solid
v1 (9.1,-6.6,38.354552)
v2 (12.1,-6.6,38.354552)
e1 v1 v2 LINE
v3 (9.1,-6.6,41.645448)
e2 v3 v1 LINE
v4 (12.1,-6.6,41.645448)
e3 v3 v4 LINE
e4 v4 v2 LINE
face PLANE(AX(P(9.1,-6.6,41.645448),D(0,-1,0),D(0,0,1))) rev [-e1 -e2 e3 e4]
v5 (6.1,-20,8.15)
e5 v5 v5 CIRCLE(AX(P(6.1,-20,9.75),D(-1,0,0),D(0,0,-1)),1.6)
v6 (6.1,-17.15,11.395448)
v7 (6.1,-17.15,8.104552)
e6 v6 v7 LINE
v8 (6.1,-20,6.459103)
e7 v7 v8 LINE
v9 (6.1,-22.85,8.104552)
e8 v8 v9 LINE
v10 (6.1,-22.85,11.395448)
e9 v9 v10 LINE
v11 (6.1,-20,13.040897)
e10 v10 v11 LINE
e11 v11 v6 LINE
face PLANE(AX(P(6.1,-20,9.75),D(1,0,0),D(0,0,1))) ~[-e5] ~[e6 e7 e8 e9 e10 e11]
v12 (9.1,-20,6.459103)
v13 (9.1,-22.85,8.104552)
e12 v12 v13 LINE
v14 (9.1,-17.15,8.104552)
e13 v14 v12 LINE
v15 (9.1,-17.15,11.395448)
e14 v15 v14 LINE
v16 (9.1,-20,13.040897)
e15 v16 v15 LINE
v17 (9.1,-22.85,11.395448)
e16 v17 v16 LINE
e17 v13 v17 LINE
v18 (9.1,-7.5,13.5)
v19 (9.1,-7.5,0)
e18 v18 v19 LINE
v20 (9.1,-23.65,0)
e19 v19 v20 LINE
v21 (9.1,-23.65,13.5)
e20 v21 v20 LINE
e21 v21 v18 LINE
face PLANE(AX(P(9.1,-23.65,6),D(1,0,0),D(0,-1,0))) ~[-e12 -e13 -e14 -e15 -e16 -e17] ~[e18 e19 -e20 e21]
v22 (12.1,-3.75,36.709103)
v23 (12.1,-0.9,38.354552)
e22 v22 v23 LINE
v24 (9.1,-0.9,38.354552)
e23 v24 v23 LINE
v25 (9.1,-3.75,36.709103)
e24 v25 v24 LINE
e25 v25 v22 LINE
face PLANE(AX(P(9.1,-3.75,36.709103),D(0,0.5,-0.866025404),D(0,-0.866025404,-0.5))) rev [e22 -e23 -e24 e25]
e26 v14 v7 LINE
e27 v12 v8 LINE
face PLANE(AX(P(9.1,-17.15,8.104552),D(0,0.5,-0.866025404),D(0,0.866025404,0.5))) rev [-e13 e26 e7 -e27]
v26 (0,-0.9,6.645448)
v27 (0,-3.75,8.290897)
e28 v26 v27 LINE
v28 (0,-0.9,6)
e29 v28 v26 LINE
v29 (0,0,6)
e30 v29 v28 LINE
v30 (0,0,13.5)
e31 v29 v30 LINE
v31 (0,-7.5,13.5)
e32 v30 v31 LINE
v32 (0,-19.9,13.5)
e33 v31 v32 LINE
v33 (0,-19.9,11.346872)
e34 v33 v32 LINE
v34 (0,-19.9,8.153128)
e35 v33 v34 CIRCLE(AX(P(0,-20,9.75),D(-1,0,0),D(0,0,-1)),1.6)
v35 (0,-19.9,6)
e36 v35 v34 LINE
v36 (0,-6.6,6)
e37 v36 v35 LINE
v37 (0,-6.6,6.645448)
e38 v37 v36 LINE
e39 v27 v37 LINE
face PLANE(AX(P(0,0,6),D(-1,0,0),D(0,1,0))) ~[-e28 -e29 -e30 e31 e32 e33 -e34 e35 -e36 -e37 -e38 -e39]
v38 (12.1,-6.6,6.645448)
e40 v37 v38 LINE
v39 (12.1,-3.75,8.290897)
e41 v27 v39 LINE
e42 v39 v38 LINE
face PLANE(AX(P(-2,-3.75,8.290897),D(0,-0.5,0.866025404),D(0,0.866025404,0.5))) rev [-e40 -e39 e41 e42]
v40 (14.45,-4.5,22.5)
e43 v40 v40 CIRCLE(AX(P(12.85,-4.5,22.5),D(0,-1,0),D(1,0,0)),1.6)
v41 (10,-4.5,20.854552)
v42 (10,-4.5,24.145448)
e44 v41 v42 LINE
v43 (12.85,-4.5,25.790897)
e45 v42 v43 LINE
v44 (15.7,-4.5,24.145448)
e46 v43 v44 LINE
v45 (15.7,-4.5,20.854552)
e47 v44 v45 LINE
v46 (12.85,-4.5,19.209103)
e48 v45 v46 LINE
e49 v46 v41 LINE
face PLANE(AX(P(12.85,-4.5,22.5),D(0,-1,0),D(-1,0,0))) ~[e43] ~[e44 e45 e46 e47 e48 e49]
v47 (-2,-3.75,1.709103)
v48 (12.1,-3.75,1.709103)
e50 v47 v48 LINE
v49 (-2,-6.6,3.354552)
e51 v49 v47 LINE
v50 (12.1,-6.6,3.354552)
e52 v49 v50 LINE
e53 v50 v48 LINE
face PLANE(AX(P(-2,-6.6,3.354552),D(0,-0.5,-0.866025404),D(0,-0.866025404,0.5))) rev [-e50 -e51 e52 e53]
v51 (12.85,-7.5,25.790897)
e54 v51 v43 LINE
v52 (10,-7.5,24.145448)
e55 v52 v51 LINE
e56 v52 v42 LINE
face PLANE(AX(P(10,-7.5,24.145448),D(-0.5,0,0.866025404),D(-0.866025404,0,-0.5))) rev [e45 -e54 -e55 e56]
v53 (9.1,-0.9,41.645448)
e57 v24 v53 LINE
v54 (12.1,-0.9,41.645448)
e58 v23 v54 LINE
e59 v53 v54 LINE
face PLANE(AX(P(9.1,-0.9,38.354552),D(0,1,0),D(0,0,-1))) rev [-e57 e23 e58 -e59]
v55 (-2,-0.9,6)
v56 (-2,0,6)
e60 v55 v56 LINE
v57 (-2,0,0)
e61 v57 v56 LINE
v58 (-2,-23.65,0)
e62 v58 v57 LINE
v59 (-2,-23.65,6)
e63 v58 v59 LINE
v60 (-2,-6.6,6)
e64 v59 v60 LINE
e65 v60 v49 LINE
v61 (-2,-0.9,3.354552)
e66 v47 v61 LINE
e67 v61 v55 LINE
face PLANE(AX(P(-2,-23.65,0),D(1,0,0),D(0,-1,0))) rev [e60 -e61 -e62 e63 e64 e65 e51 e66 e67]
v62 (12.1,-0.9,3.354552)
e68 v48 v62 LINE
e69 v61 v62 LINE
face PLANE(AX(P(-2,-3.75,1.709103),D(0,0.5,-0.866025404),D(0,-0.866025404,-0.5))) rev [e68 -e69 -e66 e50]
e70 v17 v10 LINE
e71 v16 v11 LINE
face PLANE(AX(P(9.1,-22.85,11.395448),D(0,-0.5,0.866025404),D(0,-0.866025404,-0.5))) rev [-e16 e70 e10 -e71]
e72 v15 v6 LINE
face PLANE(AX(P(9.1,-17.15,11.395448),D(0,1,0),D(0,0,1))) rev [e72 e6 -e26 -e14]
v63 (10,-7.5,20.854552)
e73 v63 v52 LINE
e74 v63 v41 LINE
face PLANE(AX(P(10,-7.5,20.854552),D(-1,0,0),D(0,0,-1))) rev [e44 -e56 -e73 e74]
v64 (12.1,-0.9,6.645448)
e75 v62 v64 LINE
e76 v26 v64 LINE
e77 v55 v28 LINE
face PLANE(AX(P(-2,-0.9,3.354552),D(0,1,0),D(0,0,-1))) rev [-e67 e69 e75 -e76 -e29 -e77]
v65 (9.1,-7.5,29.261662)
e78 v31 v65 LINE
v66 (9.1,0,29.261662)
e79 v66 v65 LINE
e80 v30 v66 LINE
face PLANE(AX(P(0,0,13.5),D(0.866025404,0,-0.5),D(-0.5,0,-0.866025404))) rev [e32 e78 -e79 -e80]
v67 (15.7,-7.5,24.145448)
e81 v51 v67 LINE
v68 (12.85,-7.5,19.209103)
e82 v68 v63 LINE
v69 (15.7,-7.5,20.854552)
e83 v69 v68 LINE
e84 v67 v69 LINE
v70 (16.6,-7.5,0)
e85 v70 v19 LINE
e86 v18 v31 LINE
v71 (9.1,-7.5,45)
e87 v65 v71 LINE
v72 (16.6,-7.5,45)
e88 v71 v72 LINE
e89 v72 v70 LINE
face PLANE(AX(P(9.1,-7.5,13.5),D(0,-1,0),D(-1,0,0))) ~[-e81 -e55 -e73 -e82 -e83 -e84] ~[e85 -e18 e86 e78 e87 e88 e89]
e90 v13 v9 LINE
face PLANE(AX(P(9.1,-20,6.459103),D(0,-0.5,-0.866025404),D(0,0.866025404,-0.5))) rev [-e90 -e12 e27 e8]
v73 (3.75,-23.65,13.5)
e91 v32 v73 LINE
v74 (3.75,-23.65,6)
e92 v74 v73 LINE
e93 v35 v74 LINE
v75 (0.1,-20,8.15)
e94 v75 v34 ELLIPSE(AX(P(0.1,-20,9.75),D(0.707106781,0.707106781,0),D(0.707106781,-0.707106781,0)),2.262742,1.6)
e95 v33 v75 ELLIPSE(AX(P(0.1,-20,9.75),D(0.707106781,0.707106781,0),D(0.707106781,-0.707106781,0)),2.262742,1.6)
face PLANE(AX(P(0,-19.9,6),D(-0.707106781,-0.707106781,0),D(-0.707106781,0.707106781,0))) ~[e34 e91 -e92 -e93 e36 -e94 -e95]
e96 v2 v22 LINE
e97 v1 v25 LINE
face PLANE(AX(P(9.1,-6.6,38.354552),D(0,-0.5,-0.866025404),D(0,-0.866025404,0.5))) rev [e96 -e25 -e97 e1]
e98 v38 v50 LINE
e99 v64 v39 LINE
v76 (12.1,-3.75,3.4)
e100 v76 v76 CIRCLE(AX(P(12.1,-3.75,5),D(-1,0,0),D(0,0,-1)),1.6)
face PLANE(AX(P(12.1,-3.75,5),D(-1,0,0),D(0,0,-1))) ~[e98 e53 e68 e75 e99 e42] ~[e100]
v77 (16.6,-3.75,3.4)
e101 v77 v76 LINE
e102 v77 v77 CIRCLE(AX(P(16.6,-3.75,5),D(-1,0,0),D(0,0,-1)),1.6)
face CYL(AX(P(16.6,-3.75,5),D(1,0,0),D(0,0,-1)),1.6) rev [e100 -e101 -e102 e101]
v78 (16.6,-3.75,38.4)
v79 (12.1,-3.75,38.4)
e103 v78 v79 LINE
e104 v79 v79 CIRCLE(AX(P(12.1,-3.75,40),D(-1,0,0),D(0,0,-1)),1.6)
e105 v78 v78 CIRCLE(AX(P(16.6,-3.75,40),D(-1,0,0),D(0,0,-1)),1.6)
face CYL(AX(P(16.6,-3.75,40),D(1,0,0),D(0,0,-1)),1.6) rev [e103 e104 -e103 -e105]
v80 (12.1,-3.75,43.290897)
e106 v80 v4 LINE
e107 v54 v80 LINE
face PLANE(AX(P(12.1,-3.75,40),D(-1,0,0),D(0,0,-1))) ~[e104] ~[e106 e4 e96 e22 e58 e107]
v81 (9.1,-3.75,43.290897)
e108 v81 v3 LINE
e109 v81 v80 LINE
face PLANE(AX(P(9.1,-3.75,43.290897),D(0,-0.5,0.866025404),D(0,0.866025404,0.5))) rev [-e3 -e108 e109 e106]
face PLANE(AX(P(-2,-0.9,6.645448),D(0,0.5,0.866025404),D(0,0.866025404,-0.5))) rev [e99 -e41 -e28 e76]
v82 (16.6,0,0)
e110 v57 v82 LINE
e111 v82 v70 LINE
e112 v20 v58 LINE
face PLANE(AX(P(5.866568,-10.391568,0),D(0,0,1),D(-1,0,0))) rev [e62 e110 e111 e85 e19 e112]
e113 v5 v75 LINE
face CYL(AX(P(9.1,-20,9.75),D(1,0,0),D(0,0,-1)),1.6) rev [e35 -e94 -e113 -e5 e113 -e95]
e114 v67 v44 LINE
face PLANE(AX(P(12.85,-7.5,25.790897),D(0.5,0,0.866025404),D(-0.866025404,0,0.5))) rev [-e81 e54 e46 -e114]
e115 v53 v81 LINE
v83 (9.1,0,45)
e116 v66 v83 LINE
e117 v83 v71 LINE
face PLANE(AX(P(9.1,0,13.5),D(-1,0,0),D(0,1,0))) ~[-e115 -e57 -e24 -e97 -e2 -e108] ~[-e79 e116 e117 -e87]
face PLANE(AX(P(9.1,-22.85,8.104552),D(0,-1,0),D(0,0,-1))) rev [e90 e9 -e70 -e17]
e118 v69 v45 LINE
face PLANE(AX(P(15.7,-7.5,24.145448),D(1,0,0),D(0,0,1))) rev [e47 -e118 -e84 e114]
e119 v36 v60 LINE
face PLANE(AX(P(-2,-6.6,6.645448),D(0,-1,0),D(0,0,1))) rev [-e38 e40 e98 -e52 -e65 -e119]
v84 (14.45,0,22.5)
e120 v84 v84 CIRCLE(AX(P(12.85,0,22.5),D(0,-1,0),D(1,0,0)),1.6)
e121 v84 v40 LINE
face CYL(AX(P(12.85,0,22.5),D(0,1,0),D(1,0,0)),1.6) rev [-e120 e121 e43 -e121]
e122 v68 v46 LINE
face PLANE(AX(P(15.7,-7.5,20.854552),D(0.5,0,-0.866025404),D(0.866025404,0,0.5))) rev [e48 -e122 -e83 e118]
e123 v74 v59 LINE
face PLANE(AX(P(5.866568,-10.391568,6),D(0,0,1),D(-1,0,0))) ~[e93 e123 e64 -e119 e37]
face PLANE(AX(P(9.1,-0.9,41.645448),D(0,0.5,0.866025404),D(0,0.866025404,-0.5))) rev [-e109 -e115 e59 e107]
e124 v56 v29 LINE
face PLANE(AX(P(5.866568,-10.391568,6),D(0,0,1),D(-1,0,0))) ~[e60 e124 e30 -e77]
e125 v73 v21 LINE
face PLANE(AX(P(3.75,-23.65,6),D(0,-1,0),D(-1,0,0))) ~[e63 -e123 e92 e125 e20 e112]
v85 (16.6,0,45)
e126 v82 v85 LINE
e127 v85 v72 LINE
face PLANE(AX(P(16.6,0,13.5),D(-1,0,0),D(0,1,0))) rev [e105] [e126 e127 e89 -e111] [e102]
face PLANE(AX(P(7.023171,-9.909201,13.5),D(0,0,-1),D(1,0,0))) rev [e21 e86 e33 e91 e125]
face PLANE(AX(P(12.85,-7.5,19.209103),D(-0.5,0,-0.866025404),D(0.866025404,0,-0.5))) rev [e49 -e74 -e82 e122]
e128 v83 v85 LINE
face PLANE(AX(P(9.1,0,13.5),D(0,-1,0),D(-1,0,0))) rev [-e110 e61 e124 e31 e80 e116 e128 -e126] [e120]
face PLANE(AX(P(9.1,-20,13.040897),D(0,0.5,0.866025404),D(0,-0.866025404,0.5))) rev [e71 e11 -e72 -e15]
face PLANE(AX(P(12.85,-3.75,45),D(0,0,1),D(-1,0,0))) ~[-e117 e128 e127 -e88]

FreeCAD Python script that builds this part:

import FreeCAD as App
import Part
import Sketcher

V = App.Vector
Q = App.Units.Quantity


def add_polygon(sketch, points):
    """Adds a closed chain of lines whose ends are joined by coincident constraints."""
    first, n = sketch.GeometryCount, len(points)
    for a, b in zip(points, points[1:] + points[:1]):
        sketch.addGeometry(Part.LineSegment(App.Vector(*a, 0), App.Vector(*b, 0)), False)
    for i in range(n):
        sketch.addConstraint(Sketcher.Constraint("Coincident", first + i, 2, first + (i + 1) % n, 1))

doc = App.newDocument("Part")
body = doc.addObject("PartDesign::Body", "Body")

# Sketch on XY plane
sketch1 = doc.addObject("Sketcher::SketchObject", "Sketch")
body.addObject(sketch1)
sketch1.AttachmentSupport = (doc.XY_Plane, [""])
sketch1.MapMode = "FlatFace"
add_polygon(sketch1, [(17, 0), (17, 8), (9, 8), (9, 24), (-2, 24), (-2, 0)])  # lines 0-5
sketch1.addConstraint(Sketcher.Constraint("Vertical", 0))
sketch1.addConstraint(Sketcher.Constraint("Horizontal", 1))
sketch1.addConstraint(Sketcher.Constraint("Vertical", 2))
sketch1.addConstraint(Sketcher.Constraint("Horizontal", 3))
sketch1.addConstraint(Sketcher.Constraint("Vertical", 4))
sketch1.addConstraint(Sketcher.Constraint("Horizontal", 5))
sketch1.addConstraint(Sketcher.Constraint("PointOnObject", 4, 2, -1))
sketch1.addConstraint(Sketcher.Constraint("Equal", 1, 0))
sketch1.addConstraint(Sketcher.Constraint("DistanceX", 1, 2, 1, 1, Q("7.5 mm")))
sketch1.addConstraint(Sketcher.Constraint("DistanceX", 3, 2, 3, 1, Q("11.1 mm")))
sketch1.addConstraint(Sketcher.Constraint("DistanceX", 3, 2, -1, 1, Q("2 mm")))
sketch1.addConstraint(Sketcher.Constraint("DistanceY", 2, 1, 2, 2, Q("16.15 mm")))
pad1 = doc.addObject("PartDesign::Pad", "Pad")
body.addObject(pad1)
pad1.Profile = sketch1
pad1.Length = 6

# Sketch on XY plane
sketch2 = doc.addObject("Sketcher::SketchObject", "Sketch001")
body.addObject(sketch2)
sketch2.AttachmentSupport = (doc.XY_Plane, [""])
sketch2.MapMode = "FlatFace"
sketch2.AttachmentOffset = App.Placement(V(0, 0, 6), App.Rotation())
add_polygon(sketch2, [(0, 20), (0, 0), (17, 0), (17, 8), (9, 8), (9, 24), (4, 24)])  # lines 0-6
sketch2.addConstraint(Sketcher.Constraint("Vertical", 0))
sketch2.addConstraint(Sketcher.Constraint("Horizontal", 1))
sketch2.addConstraint(Sketcher.Constraint("Vertical", 2))
sketch2.addConstraint(Sketcher.Constraint("Horizontal", 3))
sketch2.addConstraint(Sketcher.Constraint("Vertical", 4))
sketch2.addConstraint(Sketcher.Constraint("Horizontal", 5))
sketch2.addConstraint(Sketcher.Constraint("Coincident", 0, 2, -1, 1))
sketch2.addConstraint(Sketcher.Constraint("Equal", 3, 2))
sketch2.addConstraint(Sketcher.Constraint("Angle", 6, Q("-135 deg")))
sketch2.addConstraint(Sketcher.Constraint("DistanceX", 1, 1, 1, 2, Q("16.6 mm")))
sketch2.addConstraint(Sketcher.Constraint("DistanceX", 3, 2, 3, 1, Q("7.5 mm")))
sketch2.addConstraint(Sketcher.Constraint("DistanceY", 0, 2, 0, 1, Q("19.9 mm")))
sketch2.addConstraint(Sketcher.Constraint("DistanceX", 5, 2, 5, 1, Q("5.35 mm")))
pad2 = doc.addObject("PartDesign::Pad", "Pad001")
body.addObject(pad2)
pad2.Profile = sketch2
pad2.Length = 7.5

# Sketch on XZ plane
sketch3 = doc.addObject("Sketcher::SketchObject", "Sketch002")
body.addObject(sketch3)
sketch3.AttachmentSupport = (doc.XZ_Plane, [""])
sketch3.MapMode = "FlatFace"
add_polygon(sketch3, [(9, 29), (0, 14), (9, 14)])  # lines 0-2
sketch3.addConstraint(Sketcher.Constraint("Horizontal", 1))
sketch3.addConstraint(Sketcher.Constraint("Vertical", 2))
sketch3.addConstraint(Sketcher.Constraint("PointOnObject", 0, 2, -2))
sketch3.addConstraint(Sketcher.Constraint("Angle", 0, Q("-120 deg")))
sketch3.addConstraint(Sketcher.Constraint("DistanceX", 1, 1, 1, 2, Q("9.1 mm")))
sketch3.addConstraint(Sketcher.Constraint("DistanceY", -1, 1, 0, 2, Q("13.5 mm")))
pad3 = doc.addObject("PartDesign::Pad", "Pad002")
body.addObject(pad3)
pad3.Profile = sketch3
pad3.Length = 7.5
pad3.Reversed = True

# Sketch on XY plane
sketch4 = doc.addObject("Sketcher::SketchObject", "Sketch003")
body.addObject(sketch4)
sketch4.AttachmentSupport = (doc.XY_Plane, [""])
sketch4.MapMode = "FlatFace"
sketch4.AttachmentOffset = App.Placement(V(0, 0, 13.5), App.Rotation())
add_polygon(sketch4, [(9, 8), (9, 0), (17, 0), (17, 8)])  # lines 0-3
sketch4.addConstraint(Sketcher.Constraint("Vertical", 0))
sketch4.addConstraint(Sketcher.Constraint("Horizontal", 1))
sketch4.addConstraint(Sketcher.Constraint("Vertical", 2))
sketch4.addConstraint(Sketcher.Constraint("Horizontal", 3))
sketch4.addConstraint(Sketcher.Constraint("PointOnObject", 0, 2, -1))
sketch4.addConstraint(Sketcher.Constraint("Equal", 3, 0))
sketch4.addConstraint(Sketcher.Constraint("DistanceX", 1, 1, 1, 2, Q("7.5 mm")))
sketch4.addConstraint(Sketcher.Constraint("DistanceX", -1, 1, 0, 2, Q("9.1 mm")))
pad4 = doc.addObject("PartDesign::Pad", "Pad003")
body.addObject(pad4)
pad4.Profile = sketch4
pad4.Length = 31.5

# Sketch on YZ plane
sketch5 = doc.addObject("Sketcher::SketchObject", "Sketch004")
body.addObject(sketch5)
sketch5.AttachmentSupport = (doc.YZ_Plane, [""])
sketch5.MapMode = "FlatFace"
sketch5.AttachmentOffset = App.Placement(V(0, 0, 16.6), App.Rotation())
sketch5.addGeometry(Part.Circle(V(3.8, 5, 0), V(0, 0, 1), 1.6), False)
sketch5.addConstraint(Sketcher.Constraint("Diameter", 0, Q("3.2 mm")))
sketch5.addConstraint(Sketcher.Constraint("DistanceY", -1, 1, 0, 3, Q("5 mm")))
sketch5.addConstraint(Sketcher.Constraint("DistanceX", -1, 1, 0, 3, Q("3.75 mm")))
pocket1 = doc.addObject("PartDesign::Pocket", "Pocket")
body.addObject(pocket1)
pocket1.Profile = sketch5
pocket1.Type = "UpToFirst"

# Sketch on YZ plane
sketch6 = doc.addObject("Sketcher::SketchObject", "Sketch005")
body.addObject(sketch6)
sketch6.AttachmentSupport = (doc.YZ_Plane, [""])
sketch6.MapMode = "FlatFace"
sketch6.AttachmentOffset = App.Placement(V(0, 0, 16.6), App.Rotation())
sketch6.addGeometry(Part.Circle(V(3.8, 40, 0), V(0, 0, 1), 1.6), False)
sketch6.addConstraint(Sketcher.Constraint("Diameter", 0, Q("3.2 mm")))
sketch6.addConstraint(Sketcher.Constraint("DistanceY", -1, 1, 0, 3, Q("40 mm")))
sketch6.addConstraint(Sketcher.Constraint("DistanceX", -1, 1, 0, 3, Q("3.75 mm")))
pocket2 = doc.addObject("PartDesign::Pocket", "Pocket001")
body.addObject(pocket2)
pocket2.Profile = sketch6
pocket2.Type = "UpToFirst"

# Sketch on YZ plane
sketch7 = doc.addObject("Sketcher::SketchObject", "Sketch006")
body.addObject(sketch7)
sketch7.AttachmentSupport = (doc.YZ_Plane, [""])
sketch7.MapMode = "FlatFace"
sketch7.AttachmentOffset = App.Placement(V(0, 0, -2), App.Rotation())
add_polygon(sketch7, [(0.9, 3.4), (0.9, 6.6), (3.8, 8.3), (6.6, 6.6), (6.6, 3.4), (3.8, 1.7)])  # lines 0-5
sketch7.addConstraint(Sketcher.Constraint("Vertical", 0))
sketch7.addConstraint(Sketcher.Constraint("Vertical", 3))
sketch7.addConstraint(Sketcher.Constraint("Parallel", 1, 4))
sketch7.addConstraint(Sketcher.Constraint("Parallel", 2, 5))
sketch7.addConstraint(Sketcher.Constraint("Horizontal", 0, 2, 2, 2))
sketch7.addConstraint(Sketcher.Constraint("Horizontal", 3, 2, 5, 2))
sketch7.addConstraint(Sketcher.Constraint("Vertical", 1, 2, 4, 2))
sketch7.addConstraint(Sketcher.Constraint("Angle", 1, Q("30 deg")))
sketch7.addConstraint(Sketcher.Constraint("DistanceX", -1, 1, 0, 2, Q("0.9 mm")))
sketch7.addConstraint(Sketcher.Constraint("DistanceX", -1, 1, 2, 2, Q("6.6 mm")))
sketch7.addConstraint(Sketcher.Constraint("DistanceY", 0, 1, 0, 2, Q("3.290897 mm")))
sketch7.addConstraint(Sketcher.Constraint("DistanceY", -1, 1, 0, 2, Q("6.645448 mm")))
pocket3 = doc.addObject("PartDesign::Pocket", "Pocket002")
body.addObject(pocket3)
pocket3.Profile = sketch7
pocket3.Length = 14.1
pocket3.Reversed = True

# Sketch on YZ plane
sketch8 = doc.addObject("Sketcher::SketchObject", "Sketch007")
body.addObject(sketch8)
sketch8.AttachmentSupport = (doc.YZ_Plane, [""])
sketch8.MapMode = "FlatFace"
sketch8.AttachmentOffset = App.Placement(V(0, 0, 9.1), App.Rotation())
add_polygon(sketch8, [(0.9, 38.4), (0.9, 41.6), (3.8, 43.3), (6.6, 41.6), (6.6, 38.4), (3.8, 36.7)])  # lines 0-5
sketch8.addConstraint(Sketcher.Constraint("Vertical", 0))
sketch8.addConstraint(Sketcher.Constraint("Vertical", 3))
sketch8.addConstraint(Sketcher.Constraint("Parallel", 1, 4))
sketch8.addConstraint(Sketcher.Constraint("Parallel", 2, 5))
sketch8.addConstraint(Sketcher.Constraint("Horizontal", 0, 2, 2, 2))
sketch8.addConstraint(Sketcher.Constraint("Horizontal", 3, 2, 5, 2))
sketch8.addConstraint(Sketcher.Constraint("Vertical", 1, 2, 4, 2))
sketch8.addConstraint(Sketcher.Constraint("Angle", 1, Q("30 deg")))
sketch8.addConstraint(Sketcher.Constraint("DistanceX", -1, 1, 0, 2, Q("0.9 mm")))
sketch8.addConstraint(Sketcher.Constraint("DistanceX", -1, 1, 2, 2, Q("6.6 mm")))
sketch8.addConstraint(Sketcher.Constraint("DistanceY", 0, 1, 0, 2, Q("3.290897 mm")))
sketch8.addConstraint(Sketcher.Constraint("DistanceY", -1, 1, 0, 2, Q("41.645448 mm")))
pocket4 = doc.addObject("PartDesign::Pocket", "Pocket003")
body.addObject(pocket4)
pocket4.Profile = sketch8
pocket4.Length = 3
pocket4.Reversed = True

# Sketch on XZ plane
sketch9 = doc.addObject("Sketcher::SketchObject", "Sketch008")
body.addObject(sketch9)
sketch9.AttachmentSupport = (doc.XZ_Plane, [""])
sketch9.MapMode = "FlatFace"
sketch9.addGeometry(Part.Circle(V(12.8, 22.5, 0), V(0, 0, 1), 1.6), False)
sketch9.addConstraint(Sketcher.Constraint("Diameter", 0, Q("3.2 mm")))
sketch9.addConstraint(Sketcher.Constraint("DistanceY", -1, 1, 0, 3, Q("22.5 mm")))
sketch9.addConstraint(Sketcher.Constraint("DistanceX", -1, 1, 0, 3, Q("12.85 mm")))
pocket5 = doc.addObject("PartDesign::Pocket", "Pocket004")
body.addObject(pocket5)
pocket5.Profile = sketch9
pocket5.Type = "UpToFirst"

# Sketch on XZ plane
sketch10 = doc.addObject("Sketcher::SketchObject", "Sketch009")
body.addObject(sketch10)
sketch10.AttachmentSupport = (doc.XZ_Plane, [""])
sketch10.MapMode = "FlatFace"
sketch10.AttachmentOffset = App.Placement(V(0, 0, -7.5), App.Rotation())
add_polygon(sketch10, [(15.7, 20.9), (12.8, 19.2), (10, 20.9), (10, 24.1), (12.8, 25.8), (15.7, 24.1)])  # lines 0-5
sketch10.addConstraint(Sketcher.Constraint("Vertical", 2))
sketch10.addConstraint(Sketcher.Constraint("Vertical", 5))
sketch10.addConstraint(Sketcher.Constraint("Parallel", 0, 3))
sketch10.addConstraint(Sketcher.Constraint("Parallel", 1, 4))
sketch10.addConstraint(Sketcher.Constraint("Horizontal", 2, 2, 4, 2))
sketch10.addConstraint(Sketcher.Constraint("Horizontal", 1, 2, 5, 2))
sketch10.addConstraint(Sketcher.Constraint("Vertical", 0, 2, 3, 2))
sketch10.addConstraint(Sketcher.Constraint("Angle", 0, Q("-150 deg")))
sketch10.addConstraint(Sketcher.Constraint("DistanceX", -1, 1, 1, 2, Q("10 mm")))
sketch10.addConstraint(Sketcher.Constraint("DistanceX", -1, 1, 4, 2, Q("15.7 mm")))
sketch10.addConstraint(Sketcher.Constraint("DistanceY", 2, 1, 2, 2, Q("3.290897 mm")))
sketch10.addConstraint(Sketcher.Constraint("DistanceY", -1, 1, 1, 2, Q("20.854552 mm")))
pocket6 = doc.addObject("PartDesign::Pocket", "Pocket005")
body.addObject(pocket6)
pocket6.Profile = sketch10
pocket6.Length = 3
pocket6.Reversed = True

# Sketch on YZ plane
sketch11 = doc.addObject("Sketcher::SketchObject", "Sketch010")
body.addObject(sketch11)
sketch11.AttachmentSupport = (doc.YZ_Plane, [""])
sketch11.MapMode = "FlatFace"
sketch11.AttachmentOffset = App.Placement(V(0, 0, 9.1), App.Rotation())
sketch11.addGeometry(Part.Circle(V(20, 9.8, 0), V(0, 0, 1), 1.6), False)
sketch11.addConstraint(Sketcher.Constraint("Diameter", 0, Q("3.2 mm")))
sketch11.addConstraint(Sketcher.Constraint("DistanceX", -1, 1, 0, 3, Q("20 mm")))
sketch11.addConstraint(Sketcher.Constraint("DistanceY", -1, 1, 0, 3, Q("9.75 mm")))
pocket7 = doc.addObject("PartDesign::Pocket", "Pocket006")
body.addObject(pocket7)
pocket7.Profile = sketch11
pocket7.Type = "UpToFirst"

# Sketch on YZ plane
sketch12 = doc.addObject("Sketcher::SketchObject", "Sketch011")
body.addObject(sketch12)
sketch12.AttachmentSupport = (doc.YZ_Plane, [""])
sketch12.MapMode = "FlatFace"
sketch12.AttachmentOffset = App.Placement(V(0, 0, 9.1), App.Rotation())
add_polygon(sketch12, [(22.9, 8.1), (22.9, 11.4), (20, 13), (17.1, 11.4), (17.1, 8.1), (20, 6.5)])  # lines 0-5
sketch12.addConstraint(Sketcher.Constraint("Vertical", 0))
sketch12.addConstraint(Sketcher.Constraint("Vertical", 3))
sketch12.addConstraint(Sketcher.Constraint("Parallel", 1, 4))
sketch12.addConstraint(Sketcher.Constraint("Parallel", 2, 5))
sketch12.addConstraint(Sketcher.Constraint("Horizontal", 0, 2, 2, 2))
sketch12.addConstraint(Sketcher.Constraint("Horizontal", 3, 2, 5, 2))
sketch12.addConstraint(Sketcher.Constraint("Vertical", 1, 2, 4, 2))
sketch12.addConstraint(Sketcher.Constraint("Angle", 1, Q("150 deg")))
sketch12.addConstraint(Sketcher.Constraint("DistanceX", -1, 1, 1, 2, Q("20 mm")))
sketch12.addConstraint(Sketcher.Constraint("DistanceX", 2, 2, 0, 2, Q("5.7 mm")))
sketch12.addConstraint(Sketcher.Constraint("DistanceY", 0, 1, 0, 2, Q("3.290897 mm")))
sketch12.addConstraint(Sketcher.Constraint("DistanceY", -1, 1, 0, 2, Q("11.395448 mm")))
pocket8 = doc.addObject("PartDesign::Pocket", "Pocket007")
body.addObject(pocket8)
pocket8.Profile = sketch12
pocket8.Length = 3
body2 = doc.addObject("PartDesign::Body", "Body001")
doc.recompute()

mirroring = doc.addObject("Part::Mirroring", "Mirroring")
mirroring.Source = body
mirroring.Base = V(0, 0, 0)
mirroring.Normal = V(0, 1, 0)
body2.BaseFeature = mirroring
doc.recompute()
body.Visibility = False
mirroring.Visibility = False

doc.recompute()
